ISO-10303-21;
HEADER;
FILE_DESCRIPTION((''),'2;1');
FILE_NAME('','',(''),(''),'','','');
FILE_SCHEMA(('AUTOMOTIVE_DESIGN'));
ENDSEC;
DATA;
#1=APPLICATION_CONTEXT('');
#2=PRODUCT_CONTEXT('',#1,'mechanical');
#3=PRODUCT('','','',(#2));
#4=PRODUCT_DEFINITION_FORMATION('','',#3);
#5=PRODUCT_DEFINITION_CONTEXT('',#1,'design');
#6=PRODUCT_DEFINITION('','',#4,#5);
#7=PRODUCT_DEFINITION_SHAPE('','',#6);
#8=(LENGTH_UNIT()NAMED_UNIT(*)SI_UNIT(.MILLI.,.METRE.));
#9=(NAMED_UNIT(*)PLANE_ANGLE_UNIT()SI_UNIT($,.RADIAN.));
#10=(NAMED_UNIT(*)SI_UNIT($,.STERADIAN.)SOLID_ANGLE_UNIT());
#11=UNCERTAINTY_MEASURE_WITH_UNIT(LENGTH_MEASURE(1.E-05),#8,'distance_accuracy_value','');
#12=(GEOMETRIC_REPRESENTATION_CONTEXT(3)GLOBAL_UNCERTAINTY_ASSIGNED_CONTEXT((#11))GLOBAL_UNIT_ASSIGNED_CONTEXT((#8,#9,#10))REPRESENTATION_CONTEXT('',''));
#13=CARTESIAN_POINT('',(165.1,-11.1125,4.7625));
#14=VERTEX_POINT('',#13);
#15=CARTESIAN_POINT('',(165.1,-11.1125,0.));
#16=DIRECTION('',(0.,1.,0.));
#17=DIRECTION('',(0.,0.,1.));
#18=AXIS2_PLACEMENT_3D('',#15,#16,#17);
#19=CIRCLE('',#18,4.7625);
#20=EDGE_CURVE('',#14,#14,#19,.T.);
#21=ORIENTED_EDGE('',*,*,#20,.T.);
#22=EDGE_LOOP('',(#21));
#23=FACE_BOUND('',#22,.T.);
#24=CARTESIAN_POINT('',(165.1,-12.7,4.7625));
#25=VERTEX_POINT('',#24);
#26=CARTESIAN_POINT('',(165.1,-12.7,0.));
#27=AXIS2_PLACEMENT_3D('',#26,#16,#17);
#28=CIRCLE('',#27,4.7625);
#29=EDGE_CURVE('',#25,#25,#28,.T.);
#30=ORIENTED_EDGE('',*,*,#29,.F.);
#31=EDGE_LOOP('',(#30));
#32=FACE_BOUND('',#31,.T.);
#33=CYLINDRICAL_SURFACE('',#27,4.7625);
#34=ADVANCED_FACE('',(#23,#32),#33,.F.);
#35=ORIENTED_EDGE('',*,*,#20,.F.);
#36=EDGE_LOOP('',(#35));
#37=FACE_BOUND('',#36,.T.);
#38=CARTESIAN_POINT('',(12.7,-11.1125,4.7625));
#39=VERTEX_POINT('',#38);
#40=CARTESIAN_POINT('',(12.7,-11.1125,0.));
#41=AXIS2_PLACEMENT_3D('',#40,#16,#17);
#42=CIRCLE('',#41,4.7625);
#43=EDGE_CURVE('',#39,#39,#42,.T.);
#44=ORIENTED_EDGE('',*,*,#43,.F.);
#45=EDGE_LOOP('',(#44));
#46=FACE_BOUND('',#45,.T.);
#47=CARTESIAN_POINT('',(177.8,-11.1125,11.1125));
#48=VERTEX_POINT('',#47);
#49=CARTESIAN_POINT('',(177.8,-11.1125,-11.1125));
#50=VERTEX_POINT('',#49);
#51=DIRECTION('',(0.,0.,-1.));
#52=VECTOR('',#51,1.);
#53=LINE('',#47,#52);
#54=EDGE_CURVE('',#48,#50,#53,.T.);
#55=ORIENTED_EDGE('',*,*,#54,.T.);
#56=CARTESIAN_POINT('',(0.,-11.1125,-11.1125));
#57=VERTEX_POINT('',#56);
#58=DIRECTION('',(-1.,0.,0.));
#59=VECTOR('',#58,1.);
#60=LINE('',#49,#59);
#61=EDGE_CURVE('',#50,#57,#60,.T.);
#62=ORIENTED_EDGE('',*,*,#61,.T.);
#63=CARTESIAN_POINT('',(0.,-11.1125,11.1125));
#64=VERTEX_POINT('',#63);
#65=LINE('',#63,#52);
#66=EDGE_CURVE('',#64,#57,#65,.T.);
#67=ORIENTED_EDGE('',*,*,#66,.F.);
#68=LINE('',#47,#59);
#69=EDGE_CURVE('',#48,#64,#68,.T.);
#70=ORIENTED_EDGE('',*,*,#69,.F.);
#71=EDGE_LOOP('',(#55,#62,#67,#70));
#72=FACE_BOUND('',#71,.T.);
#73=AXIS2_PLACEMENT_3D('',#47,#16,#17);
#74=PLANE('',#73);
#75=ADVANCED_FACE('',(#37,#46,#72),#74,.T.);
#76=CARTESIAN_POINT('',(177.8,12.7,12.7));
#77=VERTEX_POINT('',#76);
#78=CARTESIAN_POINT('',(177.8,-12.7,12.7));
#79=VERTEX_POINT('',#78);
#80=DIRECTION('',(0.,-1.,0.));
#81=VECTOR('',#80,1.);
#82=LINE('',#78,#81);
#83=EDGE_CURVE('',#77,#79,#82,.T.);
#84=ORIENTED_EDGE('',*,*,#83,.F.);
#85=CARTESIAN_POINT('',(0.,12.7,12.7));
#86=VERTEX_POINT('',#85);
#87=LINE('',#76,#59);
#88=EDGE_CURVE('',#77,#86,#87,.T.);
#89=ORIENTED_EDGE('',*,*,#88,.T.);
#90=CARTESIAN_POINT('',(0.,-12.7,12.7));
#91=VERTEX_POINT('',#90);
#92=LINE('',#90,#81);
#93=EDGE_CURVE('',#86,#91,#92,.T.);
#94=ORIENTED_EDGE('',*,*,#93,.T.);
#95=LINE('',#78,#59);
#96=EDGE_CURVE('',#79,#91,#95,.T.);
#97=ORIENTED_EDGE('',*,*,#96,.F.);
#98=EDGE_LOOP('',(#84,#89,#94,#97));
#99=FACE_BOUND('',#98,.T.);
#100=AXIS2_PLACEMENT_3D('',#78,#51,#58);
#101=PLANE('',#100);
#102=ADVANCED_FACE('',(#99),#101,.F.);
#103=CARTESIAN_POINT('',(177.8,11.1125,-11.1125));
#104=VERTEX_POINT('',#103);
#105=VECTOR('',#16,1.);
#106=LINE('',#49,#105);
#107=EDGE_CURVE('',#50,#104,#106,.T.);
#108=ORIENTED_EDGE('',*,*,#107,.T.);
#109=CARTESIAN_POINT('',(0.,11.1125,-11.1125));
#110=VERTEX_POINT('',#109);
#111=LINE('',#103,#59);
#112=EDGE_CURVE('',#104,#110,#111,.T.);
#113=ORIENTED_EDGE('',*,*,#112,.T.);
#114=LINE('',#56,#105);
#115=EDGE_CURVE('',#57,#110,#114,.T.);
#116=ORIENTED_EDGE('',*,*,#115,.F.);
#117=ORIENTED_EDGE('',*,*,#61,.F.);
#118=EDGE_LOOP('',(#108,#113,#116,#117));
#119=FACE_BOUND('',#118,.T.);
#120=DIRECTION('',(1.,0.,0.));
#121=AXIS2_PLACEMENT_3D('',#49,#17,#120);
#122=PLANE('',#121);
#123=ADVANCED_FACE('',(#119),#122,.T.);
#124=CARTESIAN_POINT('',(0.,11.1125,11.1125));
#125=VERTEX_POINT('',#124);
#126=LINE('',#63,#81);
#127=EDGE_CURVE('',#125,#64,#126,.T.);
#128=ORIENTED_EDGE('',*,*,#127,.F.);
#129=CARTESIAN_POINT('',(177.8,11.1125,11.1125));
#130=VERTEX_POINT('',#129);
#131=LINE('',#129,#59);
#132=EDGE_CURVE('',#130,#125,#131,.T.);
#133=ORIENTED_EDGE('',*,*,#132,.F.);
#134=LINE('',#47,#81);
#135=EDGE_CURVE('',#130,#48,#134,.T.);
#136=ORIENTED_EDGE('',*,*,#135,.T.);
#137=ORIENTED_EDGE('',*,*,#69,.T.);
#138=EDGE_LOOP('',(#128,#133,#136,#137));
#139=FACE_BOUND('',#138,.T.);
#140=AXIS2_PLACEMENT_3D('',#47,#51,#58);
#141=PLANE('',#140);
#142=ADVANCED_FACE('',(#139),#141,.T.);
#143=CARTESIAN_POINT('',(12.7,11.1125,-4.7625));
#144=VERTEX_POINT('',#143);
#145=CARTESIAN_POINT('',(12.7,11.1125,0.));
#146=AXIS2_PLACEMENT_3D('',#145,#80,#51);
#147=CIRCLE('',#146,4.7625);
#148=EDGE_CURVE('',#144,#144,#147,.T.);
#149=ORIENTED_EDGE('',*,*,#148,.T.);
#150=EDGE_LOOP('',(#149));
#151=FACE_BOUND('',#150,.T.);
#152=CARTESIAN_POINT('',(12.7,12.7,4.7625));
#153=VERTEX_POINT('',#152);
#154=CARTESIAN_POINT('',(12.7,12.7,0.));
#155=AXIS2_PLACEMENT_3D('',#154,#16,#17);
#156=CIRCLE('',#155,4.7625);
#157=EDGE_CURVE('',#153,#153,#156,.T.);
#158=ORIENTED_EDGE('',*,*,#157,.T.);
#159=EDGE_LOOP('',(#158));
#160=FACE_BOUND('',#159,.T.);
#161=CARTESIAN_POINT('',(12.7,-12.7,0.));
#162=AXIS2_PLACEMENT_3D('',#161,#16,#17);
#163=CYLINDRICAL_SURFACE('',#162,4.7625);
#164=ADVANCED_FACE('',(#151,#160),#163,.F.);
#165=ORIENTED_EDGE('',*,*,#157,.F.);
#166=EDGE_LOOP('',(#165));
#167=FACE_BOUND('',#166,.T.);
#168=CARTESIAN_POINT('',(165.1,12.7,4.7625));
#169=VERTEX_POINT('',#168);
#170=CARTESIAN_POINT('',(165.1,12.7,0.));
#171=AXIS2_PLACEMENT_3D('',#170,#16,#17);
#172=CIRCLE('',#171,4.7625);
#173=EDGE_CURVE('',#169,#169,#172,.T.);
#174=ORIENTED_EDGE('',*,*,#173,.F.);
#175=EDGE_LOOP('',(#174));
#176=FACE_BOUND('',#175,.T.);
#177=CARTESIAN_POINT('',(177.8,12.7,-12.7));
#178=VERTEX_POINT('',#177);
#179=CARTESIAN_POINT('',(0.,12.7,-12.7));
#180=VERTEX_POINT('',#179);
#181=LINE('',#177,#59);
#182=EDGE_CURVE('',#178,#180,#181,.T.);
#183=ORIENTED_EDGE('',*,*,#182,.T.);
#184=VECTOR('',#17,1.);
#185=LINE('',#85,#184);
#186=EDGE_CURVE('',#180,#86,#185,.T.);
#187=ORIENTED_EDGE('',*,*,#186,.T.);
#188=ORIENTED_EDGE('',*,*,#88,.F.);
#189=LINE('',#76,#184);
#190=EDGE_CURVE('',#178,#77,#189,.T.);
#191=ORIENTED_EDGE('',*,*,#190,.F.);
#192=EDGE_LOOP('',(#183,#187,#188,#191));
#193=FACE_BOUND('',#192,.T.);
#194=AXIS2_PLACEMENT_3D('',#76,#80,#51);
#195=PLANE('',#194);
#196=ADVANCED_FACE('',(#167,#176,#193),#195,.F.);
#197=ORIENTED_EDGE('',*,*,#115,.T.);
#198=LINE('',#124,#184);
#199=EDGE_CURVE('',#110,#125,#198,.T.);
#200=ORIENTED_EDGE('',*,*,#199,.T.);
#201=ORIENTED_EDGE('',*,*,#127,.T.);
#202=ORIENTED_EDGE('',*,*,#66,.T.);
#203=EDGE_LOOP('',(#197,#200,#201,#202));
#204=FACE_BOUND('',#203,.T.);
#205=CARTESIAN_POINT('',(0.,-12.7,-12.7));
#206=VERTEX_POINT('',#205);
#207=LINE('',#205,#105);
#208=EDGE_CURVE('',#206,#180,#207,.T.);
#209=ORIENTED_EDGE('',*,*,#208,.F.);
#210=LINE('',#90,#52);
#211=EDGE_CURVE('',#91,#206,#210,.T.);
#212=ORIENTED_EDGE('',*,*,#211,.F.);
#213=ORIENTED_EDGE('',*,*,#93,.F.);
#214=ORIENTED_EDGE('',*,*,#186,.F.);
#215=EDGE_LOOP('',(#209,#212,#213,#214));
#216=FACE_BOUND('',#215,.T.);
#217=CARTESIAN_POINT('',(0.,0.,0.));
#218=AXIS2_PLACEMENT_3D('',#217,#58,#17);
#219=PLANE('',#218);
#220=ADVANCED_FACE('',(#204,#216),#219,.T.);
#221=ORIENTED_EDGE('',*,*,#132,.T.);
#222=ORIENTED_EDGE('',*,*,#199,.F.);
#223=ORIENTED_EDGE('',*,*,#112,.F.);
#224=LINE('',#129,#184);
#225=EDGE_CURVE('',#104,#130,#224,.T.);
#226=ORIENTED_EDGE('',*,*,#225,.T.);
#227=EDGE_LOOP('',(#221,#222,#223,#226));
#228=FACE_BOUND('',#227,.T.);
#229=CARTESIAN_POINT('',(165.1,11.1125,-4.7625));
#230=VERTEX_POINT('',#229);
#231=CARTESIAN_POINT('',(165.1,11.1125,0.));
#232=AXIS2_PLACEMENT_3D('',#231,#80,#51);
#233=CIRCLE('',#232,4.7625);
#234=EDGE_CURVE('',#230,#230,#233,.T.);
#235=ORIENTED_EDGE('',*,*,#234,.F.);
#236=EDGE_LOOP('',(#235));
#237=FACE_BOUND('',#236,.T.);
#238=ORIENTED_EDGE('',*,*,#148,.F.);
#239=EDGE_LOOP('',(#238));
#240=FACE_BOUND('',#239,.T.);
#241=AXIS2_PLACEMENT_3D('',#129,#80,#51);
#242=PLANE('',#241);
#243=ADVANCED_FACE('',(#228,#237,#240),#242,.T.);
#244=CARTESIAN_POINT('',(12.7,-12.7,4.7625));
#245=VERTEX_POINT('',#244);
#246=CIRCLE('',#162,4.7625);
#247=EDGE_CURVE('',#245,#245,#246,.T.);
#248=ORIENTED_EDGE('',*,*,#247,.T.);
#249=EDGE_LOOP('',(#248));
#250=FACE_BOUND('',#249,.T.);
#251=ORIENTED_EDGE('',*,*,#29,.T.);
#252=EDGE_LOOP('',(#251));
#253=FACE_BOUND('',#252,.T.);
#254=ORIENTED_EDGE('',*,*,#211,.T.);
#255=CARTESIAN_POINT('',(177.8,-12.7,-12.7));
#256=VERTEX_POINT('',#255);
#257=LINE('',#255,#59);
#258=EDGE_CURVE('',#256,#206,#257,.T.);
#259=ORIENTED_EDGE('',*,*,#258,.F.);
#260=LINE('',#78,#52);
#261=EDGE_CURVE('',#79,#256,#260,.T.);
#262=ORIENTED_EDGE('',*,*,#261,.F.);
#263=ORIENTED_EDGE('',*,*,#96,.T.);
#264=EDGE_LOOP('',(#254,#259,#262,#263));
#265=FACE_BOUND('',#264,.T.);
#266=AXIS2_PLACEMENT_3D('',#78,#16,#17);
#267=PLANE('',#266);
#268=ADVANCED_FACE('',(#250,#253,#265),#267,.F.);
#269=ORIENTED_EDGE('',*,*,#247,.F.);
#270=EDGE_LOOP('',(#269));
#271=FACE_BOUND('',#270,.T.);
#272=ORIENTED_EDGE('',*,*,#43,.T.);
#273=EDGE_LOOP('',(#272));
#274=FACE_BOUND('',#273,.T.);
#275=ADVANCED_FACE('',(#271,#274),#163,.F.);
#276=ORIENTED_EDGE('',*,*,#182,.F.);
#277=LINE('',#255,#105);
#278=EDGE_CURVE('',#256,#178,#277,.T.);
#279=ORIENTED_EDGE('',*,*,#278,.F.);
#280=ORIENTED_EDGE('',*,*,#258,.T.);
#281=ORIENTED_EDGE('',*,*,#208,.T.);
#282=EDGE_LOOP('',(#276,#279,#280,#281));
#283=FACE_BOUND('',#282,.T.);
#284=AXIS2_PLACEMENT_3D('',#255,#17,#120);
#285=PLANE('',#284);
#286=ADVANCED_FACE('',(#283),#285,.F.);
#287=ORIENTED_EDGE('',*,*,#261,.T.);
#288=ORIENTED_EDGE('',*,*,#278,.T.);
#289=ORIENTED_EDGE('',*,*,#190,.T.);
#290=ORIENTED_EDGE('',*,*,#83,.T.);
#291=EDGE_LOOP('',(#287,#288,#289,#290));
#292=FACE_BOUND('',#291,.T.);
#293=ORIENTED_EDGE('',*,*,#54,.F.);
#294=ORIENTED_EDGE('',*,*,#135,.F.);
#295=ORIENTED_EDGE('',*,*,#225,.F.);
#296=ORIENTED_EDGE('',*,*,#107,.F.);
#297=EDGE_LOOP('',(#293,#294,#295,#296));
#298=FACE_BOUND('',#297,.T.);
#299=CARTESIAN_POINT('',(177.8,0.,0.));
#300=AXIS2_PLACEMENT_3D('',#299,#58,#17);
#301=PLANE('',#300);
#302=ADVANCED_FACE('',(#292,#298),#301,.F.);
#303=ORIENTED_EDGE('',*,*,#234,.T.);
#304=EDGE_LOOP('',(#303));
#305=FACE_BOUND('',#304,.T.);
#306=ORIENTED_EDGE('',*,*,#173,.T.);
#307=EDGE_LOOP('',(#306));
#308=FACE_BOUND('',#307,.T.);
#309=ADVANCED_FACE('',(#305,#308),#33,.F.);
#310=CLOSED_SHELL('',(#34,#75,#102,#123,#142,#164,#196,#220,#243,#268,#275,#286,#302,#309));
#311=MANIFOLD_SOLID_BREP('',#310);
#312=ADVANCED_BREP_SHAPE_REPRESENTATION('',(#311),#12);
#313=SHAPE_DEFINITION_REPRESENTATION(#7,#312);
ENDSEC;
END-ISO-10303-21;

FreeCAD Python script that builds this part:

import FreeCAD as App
import Part
import Sketcher
from FreeCAD import Vector
Q = App.Units.Quantity

doc = App.newDocument("Part")
params = doc.addObject("Spreadsheet::Sheet", "Params")
for row, (alias, value) in enumerate([
    ("sketch1_width", "1 in"),
    ("sketch1_width2", "0.875 in"),
    ("pad1_length", "7 in"),
    ("sketch2_diameter", "0.375 in"),
], start=1):
    params.set(f"A{row}", alias)
    params.set(f"B{row}", "=" + value)
    params.setAlias(f"B{row}", alias)

body = doc.addObject("PartDesign::Body", "Body")

sketch1 = doc.addObject("Sketcher::SketchObject", "Sketch")
body.addObject(sketch1)
sketch1.AttachmentSupport = (doc.YZ_Plane, [""])
sketch1.MapMode = "FlatFace"
sketch1.addGeometry(Part.LineSegment(Vector(13, 13, 0), Vector(-13, 13, 0)), False)
sketch1.addGeometry(Part.LineSegment(Vector(-13, 13, 0), Vector(-13, -13, 0)), False)
sketch1.addGeometry(Part.LineSegment(Vector(-13, -13, 0), Vector(13, -13, 0)), False)
sketch1.addGeometry(Part.LineSegment(Vector(13, -13, 0), Vector(13, 13, 0)), False)
sketch1.addGeometry(Part.LineSegment(Vector(-11, -11, 0), Vector(-11, 11, 0)), False)
sketch1.addGeometry(Part.LineSegment(Vector(-11, 11, 0), Vector(11, 11, 0)), False)
sketch1.addGeometry(Part.LineSegment(Vector(11, 11, 0), Vector(11, -11, 0)), False)
sketch1.addGeometry(Part.LineSegment(Vector(11, -11, 0), Vector(-11, -11, 0)), False)
sketch1.addConstraint(Sketcher.Constraint("Coincident", 0, 2, 1, 1))
sketch1.addConstraint(Sketcher.Constraint("Coincident", 1, 2, 2, 1))
sketch1.addConstraint(Sketcher.Constraint("Coincident", 2, 2, 3, 1))
sketch1.addConstraint(Sketcher.Constraint("Coincident", 3, 2, 0, 1))
sketch1.addConstraint(Sketcher.Constraint("Coincident", 4, 2, 5, 1))
sketch1.addConstraint(Sketcher.Constraint("Coincident", 5, 2, 6, 1))
sketch1.addConstraint(Sketcher.Constraint("Coincident", 6, 2, 7, 1))
sketch1.addConstraint(Sketcher.Constraint("Coincident", 7, 2, 4, 1))
sketch1.addConstraint(Sketcher.Constraint("Horizontal", 0))
sketch1.addConstraint(Sketcher.Constraint("Vertical", 1))
sketch1.addConstraint(Sketcher.Constraint("Horizontal", 2))
sketch1.addConstraint(Sketcher.Constraint("Vertical", 3))
sketch1.addConstraint(Sketcher.Constraint("Vertical", 4))
sketch1.addConstraint(Sketcher.Constraint("Horizontal", 5))
sketch1.addConstraint(Sketcher.Constraint("Vertical", 6))
sketch1.addConstraint(Sketcher.Constraint("Horizontal", 7))
sketch1.addConstraint(Sketcher.Constraint("Symmetric", 0, 2, 2, 2, -1, 1))
sketch1.addConstraint(Sketcher.Constraint("Symmetric", 4, 2, 6, 2, -1, 1))
sketch1.addConstraint(Sketcher.Constraint("Equal", 2, 1))
sketch1.addConstraint(Sketcher.Constraint("Equal", 7, 4))
sketch1.addConstraint(Sketcher.Constraint("DistanceX", 0, 2, 0, 1, Q("1 in")))
sketch1.addConstraint(Sketcher.Constraint("DistanceX", 5, 1, 5, 2, Q("0.875 in")))
sketch1.setExpression("Constraints[20]", "Params.sketch1_width")
sketch1.setExpression("Constraints[21]", "Params.sketch1_width2")
pad1 = doc.addObject("PartDesign::Pad", "Pad")
body.addObject(pad1)
pad1.Profile = sketch1
pad1.setExpression("Length", "Params.pad1_length")

sketch2 = doc.addObject("Sketcher::SketchObject", "Sketch001")
body.addObject(sketch2)
sketch2.AttachmentSupport = (doc.XZ_Plane, [""])
sketch2.MapMode = "FlatFace"
sketch2.AttachmentOffset = App.Placement(Vector(0, 0, -0.5 * 25.4), App.Rotation())
sketch2.addGeometry(Part.Circle(Vector(12.7, 0, 0), Vector(0, 0, 1), 4.8), False)
sketch2.addGeometry(Part.Circle(Vector(165.1, 0, 0), Vector(0, 0, 1), 4.8), False)
sketch2.addConstraint(Sketcher.Constraint("Equal", 0, 1))
sketch2.addConstraint(Sketcher.Constraint("PointOnObject", 0, 3, -1))
sketch2.addConstraint(Sketcher.Constraint("PointOnObject", 1, 3, -1))
sketch2.addConstraint(Sketcher.Constraint("Diameter", 0, Q("0.375 in")))
sketch2.addConstraint(Sketcher.Constraint("DistanceX", 0, 3, 1, 3, Q("6 in")))
sketch2.addConstraint(Sketcher.Constraint("DistanceX", -1, 1, 0, 3, Q("0.5 in")))
sketch2.setExpression("Constraints[3]", "Params.sketch2_diameter")
pocket1 = doc.addObject("PartDesign::Pocket", "Pocket")
body.addObject(pocket1)
pocket1.Profile = sketch2
pocket1.Type = "ThroughAll"
pocket1.Reversed = True

doc.recompute()
